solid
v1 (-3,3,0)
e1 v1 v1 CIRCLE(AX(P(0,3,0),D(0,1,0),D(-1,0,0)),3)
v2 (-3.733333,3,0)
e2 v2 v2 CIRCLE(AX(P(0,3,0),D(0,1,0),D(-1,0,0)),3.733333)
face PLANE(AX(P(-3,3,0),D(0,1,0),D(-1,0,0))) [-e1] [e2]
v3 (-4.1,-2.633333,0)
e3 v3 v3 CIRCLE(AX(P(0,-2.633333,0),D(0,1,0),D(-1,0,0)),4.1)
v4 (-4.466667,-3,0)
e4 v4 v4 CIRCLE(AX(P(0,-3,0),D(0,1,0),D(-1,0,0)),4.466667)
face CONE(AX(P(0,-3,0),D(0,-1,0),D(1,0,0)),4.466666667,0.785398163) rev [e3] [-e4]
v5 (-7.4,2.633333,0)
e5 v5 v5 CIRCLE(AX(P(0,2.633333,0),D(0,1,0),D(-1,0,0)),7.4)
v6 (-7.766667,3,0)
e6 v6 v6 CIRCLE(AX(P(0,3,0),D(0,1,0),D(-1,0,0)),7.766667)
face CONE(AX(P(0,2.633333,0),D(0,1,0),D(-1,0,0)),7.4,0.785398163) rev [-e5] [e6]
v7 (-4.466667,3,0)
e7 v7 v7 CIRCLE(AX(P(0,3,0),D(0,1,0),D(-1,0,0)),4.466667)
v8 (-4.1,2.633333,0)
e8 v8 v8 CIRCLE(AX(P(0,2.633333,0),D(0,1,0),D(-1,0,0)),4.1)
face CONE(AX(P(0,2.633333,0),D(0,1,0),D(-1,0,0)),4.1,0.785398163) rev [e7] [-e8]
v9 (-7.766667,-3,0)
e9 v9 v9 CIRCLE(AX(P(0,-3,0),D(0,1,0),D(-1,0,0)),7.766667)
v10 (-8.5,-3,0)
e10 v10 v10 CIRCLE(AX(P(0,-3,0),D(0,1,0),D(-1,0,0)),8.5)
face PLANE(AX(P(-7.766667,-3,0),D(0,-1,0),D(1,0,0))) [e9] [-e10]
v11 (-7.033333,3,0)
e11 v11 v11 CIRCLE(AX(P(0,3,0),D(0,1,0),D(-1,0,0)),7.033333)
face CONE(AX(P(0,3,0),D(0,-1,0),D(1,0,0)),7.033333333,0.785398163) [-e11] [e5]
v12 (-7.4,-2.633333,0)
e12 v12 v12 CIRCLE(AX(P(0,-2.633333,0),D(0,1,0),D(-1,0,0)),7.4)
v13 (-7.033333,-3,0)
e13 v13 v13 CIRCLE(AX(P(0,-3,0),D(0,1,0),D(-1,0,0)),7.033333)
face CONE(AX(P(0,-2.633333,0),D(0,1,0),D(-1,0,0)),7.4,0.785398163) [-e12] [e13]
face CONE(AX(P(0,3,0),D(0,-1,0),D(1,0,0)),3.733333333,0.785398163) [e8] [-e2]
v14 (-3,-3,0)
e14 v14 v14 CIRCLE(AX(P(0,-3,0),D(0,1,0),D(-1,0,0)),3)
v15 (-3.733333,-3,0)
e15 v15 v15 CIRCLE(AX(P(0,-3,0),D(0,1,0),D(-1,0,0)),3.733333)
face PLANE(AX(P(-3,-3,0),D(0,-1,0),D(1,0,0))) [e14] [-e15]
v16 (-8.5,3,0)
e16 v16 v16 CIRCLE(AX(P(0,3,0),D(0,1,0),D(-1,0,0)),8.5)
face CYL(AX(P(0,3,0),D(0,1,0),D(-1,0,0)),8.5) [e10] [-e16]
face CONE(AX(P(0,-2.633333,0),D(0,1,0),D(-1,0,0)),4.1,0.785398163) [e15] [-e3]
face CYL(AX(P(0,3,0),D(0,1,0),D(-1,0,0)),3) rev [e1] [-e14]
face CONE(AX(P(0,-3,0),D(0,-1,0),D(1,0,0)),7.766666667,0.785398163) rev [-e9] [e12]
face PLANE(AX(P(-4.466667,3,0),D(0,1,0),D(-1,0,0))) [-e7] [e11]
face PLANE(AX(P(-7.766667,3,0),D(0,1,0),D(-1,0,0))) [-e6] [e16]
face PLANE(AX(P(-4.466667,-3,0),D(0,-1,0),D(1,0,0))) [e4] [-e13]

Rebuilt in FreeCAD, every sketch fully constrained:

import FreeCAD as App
import Part
import Sketcher

V = App.Vector
Q = App.Units.Quantity


def add_polygon(sketch, points):
    """Adds a closed chain of lines whose ends are joined by coincident constraints."""
    first, n = sketch.GeometryCount, len(points)
    for a, b in zip(points, points[1:] + points[:1]):
        sketch.addGeometry(Part.LineSegment(App.Vector(*a, 0), App.Vector(*b, 0)), False)
    for i in range(n):
        sketch.addConstraint(Sketcher.Constraint("Coincident", first + i, 2, first + (i + 1) % n, 1))

doc = App.newDocument("Part")
body = doc.addObject("PartDesign::Body", "Body")

# Sketch on XY plane
sketch1 = doc.addObject("Sketcher::SketchObject", "Sketch")
body.addObject(sketch1)
sketch1.AttachmentSupport = (doc.XY_Plane, [""])
sketch1.MapMode = "FlatFace"
add_polygon(sketch1, [(-3, 3), (-3.7, 3), (-4.1, 2.6), (-4.5, 3), (-7, 3), (-7.4, 2.6), (-7.8, 3), (-8.5, 3), (-8.5, -3), (-7.8, -3), (-7.4, -2.6), (-7, -3), (-4.5, -3), (-4.1, -2.6), (-3.7, -3), (-3, -3)])  # lines 0-15
sketch1.addConstraint([
    Sketcher.Constraint("Horizontal", 0),
    Sketcher.Constraint("Horizontal", 3),
    Sketcher.Constraint("Horizontal", 6),
    Sketcher.Constraint("Vertical", 7),
    Sketcher.Constraint("Horizontal", 8),
    Sketcher.Constraint("Horizontal", 11),
    Sketcher.Constraint("Horizontal", 14),
    Sketcher.Constraint("Vertical", 15),
    Sketcher.Constraint("Symmetric", 5, 2, 8, 2, -1),
    Sketcher.Constraint("Symmetric", 4, 2, 9, 2, -1),
    Sketcher.Constraint("Symmetric", 3, 2, 10, 2, -1),
    Sketcher.Constraint("Symmetric", 1, 2, 12, 2, -1),
    Sketcher.Constraint("Symmetric", 0, 2, 13, 2, -1),
    Sketcher.Constraint("Perpendicular", 1, 2),
    Sketcher.Constraint("Perpendicular", 2, 4),
    Sketcher.Constraint("Perpendicular", 4, 5),
    Sketcher.Constraint("Perpendicular", 5, 9),
    Sketcher.Constraint("Perpendicular", 10, 12),
    Sketcher.Constraint("Horizontal", 0, 2, 2, 2),
    Sketcher.Constraint("Horizontal", 1, 2, 4, 2),
    Sketcher.Constraint("Horizontal", 3, 2, 5, 2),
    Sketcher.Constraint("Equal", 0, 6),
    Sketcher.Constraint("DistanceY", 7, 2, 7, 1, Q("6 mm")),
    Sketcher.Constraint("DistanceX", 14, 2, -1, 1, Q("3 mm")),
    Sketcher.Constraint("DistanceX", 1, 2, -1, 1, Q("4.1 mm")),
    Sketcher.Constraint("DistanceX", 4, 2, -1, 1, Q("7.4 mm")),
    Sketcher.Constraint("DistanceX", 0, 2, 0, 1, Q("0.733333 mm")),
])
revolution = doc.addObject("PartDesign::Revolution", "Revolution")
body.addObject(revolution)
revolution.Profile = sketch1
revolution.ReferenceAxis = (sketch1, ["V_Axis"])
revolution.Angle = 360

doc.recompute()
